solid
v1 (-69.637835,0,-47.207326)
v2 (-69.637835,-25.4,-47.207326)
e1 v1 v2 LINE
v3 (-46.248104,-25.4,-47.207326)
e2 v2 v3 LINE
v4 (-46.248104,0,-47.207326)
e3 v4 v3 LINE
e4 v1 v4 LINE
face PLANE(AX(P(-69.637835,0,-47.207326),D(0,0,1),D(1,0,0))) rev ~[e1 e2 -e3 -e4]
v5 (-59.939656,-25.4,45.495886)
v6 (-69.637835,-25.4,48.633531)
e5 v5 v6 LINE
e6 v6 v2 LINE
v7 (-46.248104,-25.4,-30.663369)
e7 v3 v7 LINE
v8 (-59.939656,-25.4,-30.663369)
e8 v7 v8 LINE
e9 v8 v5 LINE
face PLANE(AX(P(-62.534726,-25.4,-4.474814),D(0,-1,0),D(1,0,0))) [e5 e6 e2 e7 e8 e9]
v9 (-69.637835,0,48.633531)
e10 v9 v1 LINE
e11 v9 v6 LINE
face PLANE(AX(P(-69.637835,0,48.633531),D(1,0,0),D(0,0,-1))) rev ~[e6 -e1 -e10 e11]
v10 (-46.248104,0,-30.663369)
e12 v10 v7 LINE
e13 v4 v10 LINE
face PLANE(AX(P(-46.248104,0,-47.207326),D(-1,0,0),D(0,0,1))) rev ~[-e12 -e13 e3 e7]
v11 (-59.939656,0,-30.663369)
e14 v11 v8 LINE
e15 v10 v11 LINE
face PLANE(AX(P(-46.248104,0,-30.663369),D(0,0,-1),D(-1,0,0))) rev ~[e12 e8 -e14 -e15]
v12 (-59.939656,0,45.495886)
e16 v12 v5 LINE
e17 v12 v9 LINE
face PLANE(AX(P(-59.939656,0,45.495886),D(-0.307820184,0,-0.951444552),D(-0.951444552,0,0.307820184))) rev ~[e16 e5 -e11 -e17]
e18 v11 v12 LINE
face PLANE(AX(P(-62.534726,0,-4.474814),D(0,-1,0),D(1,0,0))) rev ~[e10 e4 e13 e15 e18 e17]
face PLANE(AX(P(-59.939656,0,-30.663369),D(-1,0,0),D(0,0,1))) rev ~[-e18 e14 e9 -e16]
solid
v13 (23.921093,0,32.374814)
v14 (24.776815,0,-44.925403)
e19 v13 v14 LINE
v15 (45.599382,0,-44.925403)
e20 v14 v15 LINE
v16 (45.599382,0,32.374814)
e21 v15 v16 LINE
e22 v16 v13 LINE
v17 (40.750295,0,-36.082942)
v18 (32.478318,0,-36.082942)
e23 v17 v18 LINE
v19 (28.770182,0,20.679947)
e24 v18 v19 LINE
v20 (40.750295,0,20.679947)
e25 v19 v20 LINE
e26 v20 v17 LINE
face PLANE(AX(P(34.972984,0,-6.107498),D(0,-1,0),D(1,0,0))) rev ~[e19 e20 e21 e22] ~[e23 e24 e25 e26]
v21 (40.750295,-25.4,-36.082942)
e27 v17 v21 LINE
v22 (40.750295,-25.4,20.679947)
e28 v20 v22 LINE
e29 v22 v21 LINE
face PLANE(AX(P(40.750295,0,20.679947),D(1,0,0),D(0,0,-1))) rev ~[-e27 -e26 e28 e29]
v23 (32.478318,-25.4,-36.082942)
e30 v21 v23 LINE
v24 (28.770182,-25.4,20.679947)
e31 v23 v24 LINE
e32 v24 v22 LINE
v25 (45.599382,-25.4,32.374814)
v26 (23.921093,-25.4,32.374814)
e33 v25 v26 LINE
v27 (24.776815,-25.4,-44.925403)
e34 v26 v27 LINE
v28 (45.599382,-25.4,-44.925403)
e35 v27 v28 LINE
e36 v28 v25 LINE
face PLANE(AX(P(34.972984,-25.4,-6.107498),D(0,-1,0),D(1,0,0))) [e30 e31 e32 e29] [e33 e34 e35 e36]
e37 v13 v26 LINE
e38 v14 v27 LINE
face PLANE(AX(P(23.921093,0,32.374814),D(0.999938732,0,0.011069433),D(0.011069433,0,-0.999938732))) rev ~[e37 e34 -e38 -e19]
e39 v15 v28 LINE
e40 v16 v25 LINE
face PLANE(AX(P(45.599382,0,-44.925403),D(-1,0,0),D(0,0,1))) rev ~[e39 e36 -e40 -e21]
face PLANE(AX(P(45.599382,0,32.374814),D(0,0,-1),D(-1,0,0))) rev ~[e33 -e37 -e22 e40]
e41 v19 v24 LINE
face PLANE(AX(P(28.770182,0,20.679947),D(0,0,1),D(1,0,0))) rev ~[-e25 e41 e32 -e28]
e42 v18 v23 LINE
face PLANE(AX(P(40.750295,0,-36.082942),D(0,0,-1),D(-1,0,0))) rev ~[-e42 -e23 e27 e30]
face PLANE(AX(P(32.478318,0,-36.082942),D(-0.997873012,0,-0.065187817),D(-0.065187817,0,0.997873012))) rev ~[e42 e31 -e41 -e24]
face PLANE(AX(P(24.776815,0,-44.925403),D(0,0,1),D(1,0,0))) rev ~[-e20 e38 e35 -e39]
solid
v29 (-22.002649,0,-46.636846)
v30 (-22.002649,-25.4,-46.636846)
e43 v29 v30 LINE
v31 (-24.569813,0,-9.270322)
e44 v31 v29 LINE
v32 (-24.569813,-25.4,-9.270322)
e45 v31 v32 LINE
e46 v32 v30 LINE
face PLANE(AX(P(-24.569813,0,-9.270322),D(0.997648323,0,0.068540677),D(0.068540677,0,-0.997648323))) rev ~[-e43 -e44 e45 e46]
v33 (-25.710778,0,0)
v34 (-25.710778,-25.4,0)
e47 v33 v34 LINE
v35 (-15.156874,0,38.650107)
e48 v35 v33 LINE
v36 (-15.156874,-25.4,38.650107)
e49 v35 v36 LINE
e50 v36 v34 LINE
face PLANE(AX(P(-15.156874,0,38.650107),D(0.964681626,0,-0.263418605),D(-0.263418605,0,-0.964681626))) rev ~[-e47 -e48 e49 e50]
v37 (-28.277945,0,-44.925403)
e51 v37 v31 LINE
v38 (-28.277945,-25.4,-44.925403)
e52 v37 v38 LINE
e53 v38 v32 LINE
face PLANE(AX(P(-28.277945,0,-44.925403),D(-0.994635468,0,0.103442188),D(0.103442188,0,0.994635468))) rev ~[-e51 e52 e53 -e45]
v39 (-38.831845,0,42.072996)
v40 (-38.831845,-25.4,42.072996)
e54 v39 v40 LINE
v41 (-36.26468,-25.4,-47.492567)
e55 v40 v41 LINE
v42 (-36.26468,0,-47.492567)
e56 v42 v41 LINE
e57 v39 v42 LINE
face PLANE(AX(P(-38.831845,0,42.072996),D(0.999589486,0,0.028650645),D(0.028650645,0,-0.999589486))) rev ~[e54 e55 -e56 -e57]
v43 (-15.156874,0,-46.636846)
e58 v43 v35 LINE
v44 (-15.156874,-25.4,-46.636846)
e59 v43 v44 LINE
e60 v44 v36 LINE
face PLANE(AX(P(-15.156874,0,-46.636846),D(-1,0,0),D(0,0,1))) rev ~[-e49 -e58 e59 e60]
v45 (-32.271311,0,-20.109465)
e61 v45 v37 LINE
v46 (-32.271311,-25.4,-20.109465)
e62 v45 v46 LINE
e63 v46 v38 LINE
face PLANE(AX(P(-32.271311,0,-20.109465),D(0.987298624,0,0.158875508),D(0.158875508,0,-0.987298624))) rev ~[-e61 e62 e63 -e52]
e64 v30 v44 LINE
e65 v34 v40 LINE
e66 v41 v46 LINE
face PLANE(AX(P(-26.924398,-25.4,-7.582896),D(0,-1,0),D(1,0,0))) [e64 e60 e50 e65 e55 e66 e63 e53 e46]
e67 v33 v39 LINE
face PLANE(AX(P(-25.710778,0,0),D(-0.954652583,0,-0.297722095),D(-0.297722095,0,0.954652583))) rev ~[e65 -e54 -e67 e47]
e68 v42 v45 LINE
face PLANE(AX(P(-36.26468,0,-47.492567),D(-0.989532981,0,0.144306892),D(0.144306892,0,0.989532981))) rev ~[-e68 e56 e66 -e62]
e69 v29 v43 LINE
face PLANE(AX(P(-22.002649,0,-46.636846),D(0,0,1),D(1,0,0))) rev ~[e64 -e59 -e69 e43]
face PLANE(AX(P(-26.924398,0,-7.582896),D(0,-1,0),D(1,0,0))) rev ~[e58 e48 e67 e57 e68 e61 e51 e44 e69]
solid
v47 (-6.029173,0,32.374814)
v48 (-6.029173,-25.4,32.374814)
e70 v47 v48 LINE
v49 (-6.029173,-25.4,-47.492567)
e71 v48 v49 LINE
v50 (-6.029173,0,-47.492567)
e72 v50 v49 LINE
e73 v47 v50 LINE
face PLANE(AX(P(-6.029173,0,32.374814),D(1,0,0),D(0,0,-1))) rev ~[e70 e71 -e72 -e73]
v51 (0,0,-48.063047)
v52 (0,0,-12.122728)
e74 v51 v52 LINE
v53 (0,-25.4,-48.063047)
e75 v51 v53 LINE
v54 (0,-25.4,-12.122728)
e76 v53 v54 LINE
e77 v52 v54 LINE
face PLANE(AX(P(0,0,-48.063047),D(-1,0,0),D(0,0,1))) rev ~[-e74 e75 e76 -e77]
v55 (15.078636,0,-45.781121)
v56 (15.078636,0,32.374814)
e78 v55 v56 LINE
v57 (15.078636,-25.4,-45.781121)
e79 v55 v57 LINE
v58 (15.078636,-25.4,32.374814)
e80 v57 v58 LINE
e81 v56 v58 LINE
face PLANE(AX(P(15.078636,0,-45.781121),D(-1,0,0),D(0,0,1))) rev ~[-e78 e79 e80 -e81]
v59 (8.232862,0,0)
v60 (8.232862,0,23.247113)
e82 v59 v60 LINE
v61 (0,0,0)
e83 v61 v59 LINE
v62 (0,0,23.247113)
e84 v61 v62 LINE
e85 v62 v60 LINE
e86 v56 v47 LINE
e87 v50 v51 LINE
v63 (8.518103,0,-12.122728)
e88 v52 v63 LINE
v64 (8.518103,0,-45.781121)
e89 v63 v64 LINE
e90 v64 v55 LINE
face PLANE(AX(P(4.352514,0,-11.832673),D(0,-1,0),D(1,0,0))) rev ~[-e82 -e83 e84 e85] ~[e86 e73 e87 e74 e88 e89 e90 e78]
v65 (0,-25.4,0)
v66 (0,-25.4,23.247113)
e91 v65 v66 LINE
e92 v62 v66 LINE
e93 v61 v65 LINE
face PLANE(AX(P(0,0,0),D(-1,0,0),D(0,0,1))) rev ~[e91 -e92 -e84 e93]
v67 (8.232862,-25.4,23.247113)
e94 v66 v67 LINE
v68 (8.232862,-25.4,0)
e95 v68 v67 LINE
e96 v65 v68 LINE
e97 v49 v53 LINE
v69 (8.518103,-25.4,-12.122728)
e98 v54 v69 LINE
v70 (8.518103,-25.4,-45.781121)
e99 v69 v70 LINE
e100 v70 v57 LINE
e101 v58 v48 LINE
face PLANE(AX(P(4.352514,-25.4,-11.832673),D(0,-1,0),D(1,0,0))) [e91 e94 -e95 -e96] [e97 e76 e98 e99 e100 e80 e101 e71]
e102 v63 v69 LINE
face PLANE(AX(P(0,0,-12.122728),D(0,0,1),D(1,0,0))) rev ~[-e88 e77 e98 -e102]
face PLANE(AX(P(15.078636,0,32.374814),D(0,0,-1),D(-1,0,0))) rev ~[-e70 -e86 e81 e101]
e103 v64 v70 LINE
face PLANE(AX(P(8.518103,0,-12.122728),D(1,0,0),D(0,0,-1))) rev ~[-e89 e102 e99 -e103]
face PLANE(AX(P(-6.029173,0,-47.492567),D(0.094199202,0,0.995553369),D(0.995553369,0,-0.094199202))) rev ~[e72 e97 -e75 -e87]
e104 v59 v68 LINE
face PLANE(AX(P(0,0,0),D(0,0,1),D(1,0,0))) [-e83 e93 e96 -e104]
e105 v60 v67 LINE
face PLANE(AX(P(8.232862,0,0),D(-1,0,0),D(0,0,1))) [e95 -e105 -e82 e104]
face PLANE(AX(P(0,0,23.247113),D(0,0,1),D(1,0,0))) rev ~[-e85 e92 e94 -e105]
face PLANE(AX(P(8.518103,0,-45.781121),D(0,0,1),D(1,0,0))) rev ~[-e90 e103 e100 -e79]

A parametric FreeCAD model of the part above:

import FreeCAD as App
import Part
import Sketcher
Q = App.Units.Quantity


def add_polygon(sketch, points):
    """Adds a closed chain of lines whose ends are joined by coincident constraints."""
    first, n = sketch.GeometryCount, len(points)
    for a, b in zip(points, points[1:] + points[:1]):
        sketch.addGeometry(Part.LineSegment(App.Vector(*a, 0), App.Vector(*b, 0)), False)
    for i in range(n):
        sketch.addConstraint(Sketcher.Constraint("Coincident", first + i, 2, first + (i + 1) % n, 1))

doc = App.newDocument("Part")
body = doc.addObject("PartDesign::Body", "Body")
body.AllowCompound = True

# Sketch on XZ plane
sketch1 = doc.addObject("Sketcher::SketchObject", "Sketch")
body.addObject(sketch1)
sketch1.AttachmentSupport = (doc.XZ_Plane, [""])
sketch1.MapMode = "FlatFace"
add_polygon(sketch1, [(-59.939656, 45.495886), (-69.637835, 48.633531), (-69.637835, -47.207326), (-46.248104, -47.207326), (-46.248104, -30.663369), (-59.939656, -30.663369)])  # lines 0-5
add_polygon(sketch1, [(-38.831845, 42.072996), (-36.26468, -47.492567), (-32.271311, -20.109465), (-28.277945, -44.925403), (-24.569813, -9.270322), (-22.002649, -46.636846), (-15.156874, -46.636846), (-15.156874, 38.650107), (-25.710778, 0)])  # lines 6-14
add_polygon(sketch1, [(15.078636, 32.374814), (-6.029173, 32.374814), (-6.029173, -47.492567), (0, -48.063047), (0, -12.122728), (8.518103, -12.122728), (8.518103, -45.781121), (15.078636, -45.781121)])  # lines 15-22
add_polygon(sketch1, [(8.232862, 0), (0, 0), (0, 23.247113), (8.232862, 23.247113)])  # lines 23-26
add_polygon(sketch1, [(45.599382, 32.374814), (23.921093, 32.374814), (24.776815, -44.925403), (45.599382, -44.925403)])  # lines 27-30
add_polygon(sketch1, [(40.750295, -36.082942), (32.478318, -36.082942), (28.770182, 20.679947), (40.750295, 20.679947)])  # lines 31-34
sketch1.addConstraint([
    Sketcher.Constraint("Vertical", 1),
    Sketcher.Constraint("Horizontal", 2),
    Sketcher.Constraint("Vertical", 3),
    Sketcher.Constraint("Horizontal", 4),
    Sketcher.Constraint("Vertical", 5),
    Sketcher.Constraint("Horizontal", 11),
    Sketcher.Constraint("Vertical", 12),
    Sketcher.Constraint("Horizontal", 15),
    Sketcher.Constraint("Vertical", 16),
    Sketcher.Constraint("Vertical", 18),
    Sketcher.Constraint("Horizontal", 19),
    Sketcher.Constraint("Vertical", 20),
    Sketcher.Constraint("Horizontal", 21),
    Sketcher.Constraint("Vertical", 22),
    Sketcher.Constraint("Horizontal", 23),
    Sketcher.Constraint("Vertical", 24),
    Sketcher.Constraint("Horizontal", 25),
    Sketcher.Constraint("Vertical", 26),
    Sketcher.Constraint("Horizontal", 27),
    Sketcher.Constraint("Horizontal", 29),
    Sketcher.Constraint("Vertical", 30),
    Sketcher.Constraint("Horizontal", 31),
    Sketcher.Constraint("Horizontal", 33),
    Sketcher.Constraint("Vertical", 34),
    Sketcher.Constraint("Coincident", 23, 2, -1, 1),
    Sketcher.Constraint("PointOnObject", 13, 2, -1),
    Sketcher.Constraint("PointOnObject", 17, 2, -2),
    Sketcher.Constraint("Horizontal", 6, 2, 16, 2),
    Sketcher.Constraint("Horizontal", 22, 2, 27, 2),
    Sketcher.Constraint("Horizontal", 8, 2, 28, 2),
    Sketcher.Constraint("DistanceX", 2, 1, 2, 2, 23.389731),
    Sketcher.Constraint("DistanceX", 15, 2, 15, 1, 21.107809),
    Sketcher.Constraint("DistanceX", 27, 2, 27, 1, 21.678289),
    Sketcher.Constraint("DistanceY", 16, 2, 16, 1, 79.867381),
    Sketcher.Constraint("DistanceY", 18, 1, 18, 2, 35.940319),
    Sketcher.Constraint("DistanceY", 34, 2, 34, 1, 56.762889),
    Sketcher.Constraint("DistanceY", 3, 2, 0, 2, 79.2969),
    Sketcher.Constraint("DistanceY", 6, 2, 3, 2, 16.829198),
    Sketcher.Constraint("DistanceX", 12, 2, 15, 2, 9.127701),
    Sketcher.Constraint("DistanceY", 17, 2, 11, 2, 1.426201),
    Sketcher.Constraint("DistanceY", 24, 2, 15, 2, 9.127702),
    Sketcher.Constraint("DistanceX", 32, 2, 30, 2, 16.8292),
    Sketcher.Constraint("Distance", 0, 10.19311),
    Sketcher.Constraint("Distance", 8, 25.135189),
    Sketcher.Constraint("Distance", 32, 56.88388),
    Sketcher.Constraint("DistanceX", 4, 2, 4, 1, 13.691552),
    Sketcher.Constraint("DistanceX", 11, 1, 11, 2, 6.845775),
    Sketcher.Constraint("DistanceX", 19, 1, 19, 2, 8.518103),
    Sketcher.Constraint("DistanceX", 21, 1, 21, 2, 6.560533),
    Sketcher.Constraint("DistanceX", 23, 2, 23, 1, 8.232862),
    Sketcher.Constraint("DistanceX", 29, 1, 29, 2, 20.822567),
    Sketcher.Constraint("DistanceX", 31, 2, 31, 1, 8.271977),
    Sketcher.Constraint("DistanceY", 1, 2, 1, 1, 95.840857),
    Sketcher.Constraint("DistanceY", 12, 1, 12, 2, 85.286953),
    Sketcher.Constraint("DistanceY", 20, 2, 20, 1, 33.658393),
    Sketcher.Constraint("DistanceY", 22, 1, 22, 2, 78.155935),
    Sketcher.Constraint("DistanceY", 24, 1, 24, 2, 23.247113),
    Sketcher.Constraint("DistanceY", 30, 1, 30, 2, 77.300217),
    Sketcher.Constraint("DistanceX", 6, 2, -1, 1, 36.26468),
    Sketcher.Constraint("DistanceX", 7, 2, -1, 1, 32.271311),
    Sketcher.Constraint("DistanceX", 13, 2, -1, 1, 25.710778),
    Sketcher.Constraint("DistanceX", -1, 1, 31, 2, 32.478318),
    Sketcher.Constraint("DistanceY", 2, 2, 7, 2, 27.097861),
    Sketcher.Constraint("DistanceX", 2, 2, 8, 2, 17.970159),
    Sketcher.Constraint("DistanceX", 3, 2, 9, 2, 21.678291),
    Sketcher.Constraint("DistanceY", 8, 2, 9, 2, 35.655081),
    Sketcher.Constraint("DistanceX", 5, 2, 14, 2, 21.107811),
    Sketcher.Constraint("DistanceY", 14, 2, 5, 2, 3.42289),
    Sketcher.Constraint("DistanceY", 28, 2, 31, 2, 8.842461),
])
pad1 = doc.addObject("PartDesign::Pad", "Pad")
body.addObject(pad1)
pad1.Profile = sketch1
pad1.Length = Q("1 in")

doc.recompute()
